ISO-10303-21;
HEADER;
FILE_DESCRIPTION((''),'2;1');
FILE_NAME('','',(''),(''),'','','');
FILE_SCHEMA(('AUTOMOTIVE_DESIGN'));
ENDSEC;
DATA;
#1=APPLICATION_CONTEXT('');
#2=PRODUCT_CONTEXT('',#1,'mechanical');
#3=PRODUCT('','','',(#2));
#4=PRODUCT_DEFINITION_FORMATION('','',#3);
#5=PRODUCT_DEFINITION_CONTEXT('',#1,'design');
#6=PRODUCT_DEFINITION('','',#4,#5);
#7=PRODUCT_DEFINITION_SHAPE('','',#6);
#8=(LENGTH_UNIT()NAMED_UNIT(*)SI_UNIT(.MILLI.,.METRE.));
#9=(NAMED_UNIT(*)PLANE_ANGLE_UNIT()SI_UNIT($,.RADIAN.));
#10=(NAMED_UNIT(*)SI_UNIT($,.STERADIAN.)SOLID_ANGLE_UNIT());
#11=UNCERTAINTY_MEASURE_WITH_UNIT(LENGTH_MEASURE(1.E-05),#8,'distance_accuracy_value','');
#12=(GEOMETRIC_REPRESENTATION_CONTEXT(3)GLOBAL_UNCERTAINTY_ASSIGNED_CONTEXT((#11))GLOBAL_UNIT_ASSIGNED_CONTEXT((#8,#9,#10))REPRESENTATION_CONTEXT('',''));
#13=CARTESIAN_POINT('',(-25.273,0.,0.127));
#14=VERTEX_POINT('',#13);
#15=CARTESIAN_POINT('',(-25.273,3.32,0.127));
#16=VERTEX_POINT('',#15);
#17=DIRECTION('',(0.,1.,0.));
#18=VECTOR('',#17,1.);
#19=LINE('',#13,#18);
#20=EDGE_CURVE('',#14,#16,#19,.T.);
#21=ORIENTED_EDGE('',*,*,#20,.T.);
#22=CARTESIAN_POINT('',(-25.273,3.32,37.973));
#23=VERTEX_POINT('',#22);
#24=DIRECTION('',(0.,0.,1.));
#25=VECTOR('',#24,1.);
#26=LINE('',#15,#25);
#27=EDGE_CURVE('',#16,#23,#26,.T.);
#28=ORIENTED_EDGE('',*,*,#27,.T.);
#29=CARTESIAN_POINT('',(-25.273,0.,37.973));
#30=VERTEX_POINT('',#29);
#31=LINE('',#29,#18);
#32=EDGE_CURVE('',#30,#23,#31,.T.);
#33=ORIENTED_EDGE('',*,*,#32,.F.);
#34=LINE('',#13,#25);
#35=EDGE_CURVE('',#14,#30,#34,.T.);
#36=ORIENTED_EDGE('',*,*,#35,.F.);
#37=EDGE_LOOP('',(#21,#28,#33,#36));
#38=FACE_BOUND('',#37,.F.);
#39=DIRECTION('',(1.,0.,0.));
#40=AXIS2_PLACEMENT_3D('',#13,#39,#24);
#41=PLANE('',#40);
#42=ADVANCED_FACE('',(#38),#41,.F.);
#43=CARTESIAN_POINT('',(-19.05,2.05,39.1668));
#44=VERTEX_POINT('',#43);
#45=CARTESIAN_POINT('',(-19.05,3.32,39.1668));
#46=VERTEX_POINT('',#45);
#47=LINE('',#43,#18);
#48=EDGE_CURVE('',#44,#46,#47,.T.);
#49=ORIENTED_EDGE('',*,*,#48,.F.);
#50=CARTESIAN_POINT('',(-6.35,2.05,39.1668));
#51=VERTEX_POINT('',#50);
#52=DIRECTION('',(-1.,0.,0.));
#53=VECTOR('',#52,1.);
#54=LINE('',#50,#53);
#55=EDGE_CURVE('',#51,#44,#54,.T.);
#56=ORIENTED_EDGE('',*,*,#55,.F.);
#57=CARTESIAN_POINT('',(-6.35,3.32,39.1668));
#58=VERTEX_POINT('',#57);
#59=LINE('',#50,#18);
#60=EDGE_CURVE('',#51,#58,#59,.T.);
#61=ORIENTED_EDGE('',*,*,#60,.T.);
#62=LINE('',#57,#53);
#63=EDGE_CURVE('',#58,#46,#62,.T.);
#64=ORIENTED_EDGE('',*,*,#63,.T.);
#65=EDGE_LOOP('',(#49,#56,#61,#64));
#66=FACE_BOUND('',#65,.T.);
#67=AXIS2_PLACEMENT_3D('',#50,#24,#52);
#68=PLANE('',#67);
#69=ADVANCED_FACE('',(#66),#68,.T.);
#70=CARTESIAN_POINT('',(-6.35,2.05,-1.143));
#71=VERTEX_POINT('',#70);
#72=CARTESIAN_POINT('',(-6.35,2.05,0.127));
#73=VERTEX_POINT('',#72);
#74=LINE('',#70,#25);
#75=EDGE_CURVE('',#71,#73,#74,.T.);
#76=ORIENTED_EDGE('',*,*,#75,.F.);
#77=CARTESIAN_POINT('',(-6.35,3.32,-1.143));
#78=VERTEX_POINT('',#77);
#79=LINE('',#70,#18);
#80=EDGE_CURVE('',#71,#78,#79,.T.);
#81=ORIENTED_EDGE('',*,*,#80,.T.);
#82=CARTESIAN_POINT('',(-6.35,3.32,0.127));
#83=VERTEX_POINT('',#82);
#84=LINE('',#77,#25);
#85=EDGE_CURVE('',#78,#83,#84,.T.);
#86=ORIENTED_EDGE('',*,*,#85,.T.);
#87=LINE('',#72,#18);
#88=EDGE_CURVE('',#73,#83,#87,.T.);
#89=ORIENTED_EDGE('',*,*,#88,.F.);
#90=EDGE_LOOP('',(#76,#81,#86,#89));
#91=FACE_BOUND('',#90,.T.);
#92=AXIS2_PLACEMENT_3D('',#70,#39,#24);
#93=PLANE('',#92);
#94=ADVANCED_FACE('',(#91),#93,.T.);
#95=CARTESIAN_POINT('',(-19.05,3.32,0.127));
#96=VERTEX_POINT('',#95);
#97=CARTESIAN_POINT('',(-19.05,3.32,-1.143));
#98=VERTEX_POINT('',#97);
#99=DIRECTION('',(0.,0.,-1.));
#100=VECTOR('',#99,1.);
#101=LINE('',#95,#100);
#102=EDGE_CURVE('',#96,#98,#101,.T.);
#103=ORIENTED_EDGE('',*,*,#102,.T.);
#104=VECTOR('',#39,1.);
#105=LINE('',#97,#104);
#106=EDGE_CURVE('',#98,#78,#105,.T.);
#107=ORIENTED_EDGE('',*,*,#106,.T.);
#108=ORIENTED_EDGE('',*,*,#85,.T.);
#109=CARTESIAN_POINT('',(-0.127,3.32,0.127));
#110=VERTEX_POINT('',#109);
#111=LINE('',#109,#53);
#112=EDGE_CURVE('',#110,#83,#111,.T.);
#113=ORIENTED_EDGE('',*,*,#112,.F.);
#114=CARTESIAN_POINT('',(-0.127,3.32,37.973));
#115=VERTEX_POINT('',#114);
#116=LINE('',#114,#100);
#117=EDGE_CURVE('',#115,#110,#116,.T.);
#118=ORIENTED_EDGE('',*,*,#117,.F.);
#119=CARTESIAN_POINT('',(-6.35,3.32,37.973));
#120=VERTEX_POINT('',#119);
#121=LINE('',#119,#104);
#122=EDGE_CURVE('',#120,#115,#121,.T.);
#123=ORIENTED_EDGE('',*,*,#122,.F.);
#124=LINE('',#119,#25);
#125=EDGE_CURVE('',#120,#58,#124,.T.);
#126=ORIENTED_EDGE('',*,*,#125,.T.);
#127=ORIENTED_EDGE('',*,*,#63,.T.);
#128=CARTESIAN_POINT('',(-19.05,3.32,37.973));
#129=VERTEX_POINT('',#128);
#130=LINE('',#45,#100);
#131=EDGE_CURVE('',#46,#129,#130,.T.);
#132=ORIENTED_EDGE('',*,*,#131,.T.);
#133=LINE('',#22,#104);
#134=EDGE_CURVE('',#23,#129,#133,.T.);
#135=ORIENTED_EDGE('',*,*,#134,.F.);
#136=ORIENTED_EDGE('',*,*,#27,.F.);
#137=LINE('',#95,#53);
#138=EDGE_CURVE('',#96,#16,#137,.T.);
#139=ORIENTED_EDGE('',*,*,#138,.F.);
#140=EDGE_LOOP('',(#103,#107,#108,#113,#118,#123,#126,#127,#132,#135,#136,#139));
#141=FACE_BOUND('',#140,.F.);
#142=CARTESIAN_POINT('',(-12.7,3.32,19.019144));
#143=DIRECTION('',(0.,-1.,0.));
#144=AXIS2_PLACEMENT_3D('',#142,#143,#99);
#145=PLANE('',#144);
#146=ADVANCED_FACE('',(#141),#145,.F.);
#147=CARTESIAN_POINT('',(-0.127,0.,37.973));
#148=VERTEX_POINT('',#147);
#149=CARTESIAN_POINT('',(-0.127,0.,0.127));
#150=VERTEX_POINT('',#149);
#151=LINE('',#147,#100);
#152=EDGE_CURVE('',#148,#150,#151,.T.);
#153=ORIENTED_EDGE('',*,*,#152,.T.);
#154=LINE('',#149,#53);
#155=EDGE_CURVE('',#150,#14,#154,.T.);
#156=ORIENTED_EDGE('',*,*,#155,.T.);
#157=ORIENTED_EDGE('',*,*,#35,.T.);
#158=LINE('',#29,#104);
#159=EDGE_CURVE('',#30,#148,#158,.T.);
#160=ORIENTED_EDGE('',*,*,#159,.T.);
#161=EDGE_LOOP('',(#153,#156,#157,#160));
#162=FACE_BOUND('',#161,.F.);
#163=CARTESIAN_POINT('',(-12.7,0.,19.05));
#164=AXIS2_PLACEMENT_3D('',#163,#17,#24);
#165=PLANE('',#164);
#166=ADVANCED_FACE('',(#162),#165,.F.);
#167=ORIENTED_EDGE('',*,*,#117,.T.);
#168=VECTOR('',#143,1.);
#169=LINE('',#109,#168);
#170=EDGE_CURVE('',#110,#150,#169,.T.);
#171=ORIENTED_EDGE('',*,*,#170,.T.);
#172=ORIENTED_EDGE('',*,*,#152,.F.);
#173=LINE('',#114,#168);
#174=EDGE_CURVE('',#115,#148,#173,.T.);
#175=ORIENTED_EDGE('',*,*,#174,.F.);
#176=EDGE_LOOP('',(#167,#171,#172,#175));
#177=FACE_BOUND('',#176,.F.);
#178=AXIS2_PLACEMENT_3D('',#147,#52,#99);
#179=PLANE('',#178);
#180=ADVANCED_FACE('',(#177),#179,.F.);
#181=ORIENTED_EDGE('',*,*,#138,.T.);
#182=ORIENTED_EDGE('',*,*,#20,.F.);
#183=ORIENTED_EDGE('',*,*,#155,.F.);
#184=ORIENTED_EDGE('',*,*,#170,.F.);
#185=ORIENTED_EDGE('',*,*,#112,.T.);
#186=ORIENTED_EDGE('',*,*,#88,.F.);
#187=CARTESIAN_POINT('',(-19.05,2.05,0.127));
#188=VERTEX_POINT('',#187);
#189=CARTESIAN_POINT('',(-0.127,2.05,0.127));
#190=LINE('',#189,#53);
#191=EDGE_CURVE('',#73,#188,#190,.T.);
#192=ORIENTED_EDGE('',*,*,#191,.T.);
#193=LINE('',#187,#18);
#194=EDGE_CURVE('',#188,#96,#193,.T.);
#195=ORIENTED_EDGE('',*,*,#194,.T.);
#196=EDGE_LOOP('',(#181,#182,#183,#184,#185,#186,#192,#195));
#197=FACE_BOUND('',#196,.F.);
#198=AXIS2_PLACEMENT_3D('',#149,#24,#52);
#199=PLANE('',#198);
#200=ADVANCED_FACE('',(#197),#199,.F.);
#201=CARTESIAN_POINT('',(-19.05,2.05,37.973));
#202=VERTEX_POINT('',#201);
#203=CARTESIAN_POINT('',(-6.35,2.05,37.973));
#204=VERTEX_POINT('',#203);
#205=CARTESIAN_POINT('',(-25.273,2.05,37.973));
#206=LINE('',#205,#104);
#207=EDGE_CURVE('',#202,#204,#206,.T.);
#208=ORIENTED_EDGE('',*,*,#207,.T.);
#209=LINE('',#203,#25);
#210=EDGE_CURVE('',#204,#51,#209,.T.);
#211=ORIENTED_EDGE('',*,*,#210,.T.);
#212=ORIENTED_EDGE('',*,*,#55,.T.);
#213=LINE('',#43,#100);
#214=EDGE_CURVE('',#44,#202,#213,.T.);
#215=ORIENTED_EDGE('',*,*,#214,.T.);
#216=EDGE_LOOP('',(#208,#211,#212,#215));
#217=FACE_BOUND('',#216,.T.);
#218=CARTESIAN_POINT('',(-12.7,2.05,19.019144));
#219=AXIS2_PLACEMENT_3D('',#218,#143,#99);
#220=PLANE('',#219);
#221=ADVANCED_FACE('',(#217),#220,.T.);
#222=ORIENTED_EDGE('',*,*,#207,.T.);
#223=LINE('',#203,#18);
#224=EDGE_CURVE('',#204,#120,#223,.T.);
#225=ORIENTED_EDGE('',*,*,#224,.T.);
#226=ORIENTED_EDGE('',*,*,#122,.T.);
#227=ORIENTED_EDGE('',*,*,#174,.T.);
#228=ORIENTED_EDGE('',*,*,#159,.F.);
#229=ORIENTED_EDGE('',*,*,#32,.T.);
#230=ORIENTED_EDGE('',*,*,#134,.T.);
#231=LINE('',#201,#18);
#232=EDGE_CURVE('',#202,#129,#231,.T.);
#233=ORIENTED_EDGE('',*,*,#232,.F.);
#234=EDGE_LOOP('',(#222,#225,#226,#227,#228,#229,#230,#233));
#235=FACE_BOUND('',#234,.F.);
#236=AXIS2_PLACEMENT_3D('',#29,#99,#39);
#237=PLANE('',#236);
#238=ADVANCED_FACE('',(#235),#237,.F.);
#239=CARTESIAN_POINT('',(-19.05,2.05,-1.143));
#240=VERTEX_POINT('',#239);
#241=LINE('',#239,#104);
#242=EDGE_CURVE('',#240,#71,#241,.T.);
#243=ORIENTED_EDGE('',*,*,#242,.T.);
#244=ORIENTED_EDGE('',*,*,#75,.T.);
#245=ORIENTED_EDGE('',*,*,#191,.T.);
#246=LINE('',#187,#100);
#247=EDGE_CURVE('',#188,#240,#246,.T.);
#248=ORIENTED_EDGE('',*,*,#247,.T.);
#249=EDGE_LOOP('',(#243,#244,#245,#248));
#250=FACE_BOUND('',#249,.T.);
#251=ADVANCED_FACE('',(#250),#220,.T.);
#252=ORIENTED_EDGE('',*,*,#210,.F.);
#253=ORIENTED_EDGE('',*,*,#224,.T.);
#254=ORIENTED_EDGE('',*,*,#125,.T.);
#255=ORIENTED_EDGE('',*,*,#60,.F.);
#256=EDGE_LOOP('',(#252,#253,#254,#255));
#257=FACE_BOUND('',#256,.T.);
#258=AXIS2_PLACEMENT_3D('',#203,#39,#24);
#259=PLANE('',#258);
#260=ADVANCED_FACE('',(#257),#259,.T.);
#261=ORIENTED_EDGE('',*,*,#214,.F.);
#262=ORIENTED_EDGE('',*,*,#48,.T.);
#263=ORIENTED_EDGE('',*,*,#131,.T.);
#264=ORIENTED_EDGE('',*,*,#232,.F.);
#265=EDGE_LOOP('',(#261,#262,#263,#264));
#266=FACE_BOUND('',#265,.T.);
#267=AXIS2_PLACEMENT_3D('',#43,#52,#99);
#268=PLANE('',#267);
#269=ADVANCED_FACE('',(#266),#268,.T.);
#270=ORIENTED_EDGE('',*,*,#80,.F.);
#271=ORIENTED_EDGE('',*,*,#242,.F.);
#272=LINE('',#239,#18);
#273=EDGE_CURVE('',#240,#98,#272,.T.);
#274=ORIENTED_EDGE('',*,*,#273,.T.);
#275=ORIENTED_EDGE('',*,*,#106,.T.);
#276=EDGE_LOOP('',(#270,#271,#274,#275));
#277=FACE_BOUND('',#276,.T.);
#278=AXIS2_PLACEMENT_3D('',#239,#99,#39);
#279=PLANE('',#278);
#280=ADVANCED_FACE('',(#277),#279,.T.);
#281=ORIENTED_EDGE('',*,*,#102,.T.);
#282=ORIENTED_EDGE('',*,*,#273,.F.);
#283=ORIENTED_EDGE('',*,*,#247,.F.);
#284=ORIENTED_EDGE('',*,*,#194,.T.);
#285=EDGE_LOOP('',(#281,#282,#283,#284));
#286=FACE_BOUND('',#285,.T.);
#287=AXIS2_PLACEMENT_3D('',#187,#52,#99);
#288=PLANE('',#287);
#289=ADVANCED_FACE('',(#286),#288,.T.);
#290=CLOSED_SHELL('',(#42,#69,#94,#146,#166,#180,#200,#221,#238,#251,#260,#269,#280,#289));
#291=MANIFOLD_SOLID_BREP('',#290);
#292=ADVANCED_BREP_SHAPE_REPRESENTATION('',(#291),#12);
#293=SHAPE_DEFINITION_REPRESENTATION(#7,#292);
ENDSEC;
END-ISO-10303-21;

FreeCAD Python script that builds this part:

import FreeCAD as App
import Part
import Sketcher
from FreeCAD import Vector
Q = App.Units.Quantity


def add_polygon(sketch, points):
    """Adds a closed chain of lines whose ends are joined by coincident constraints."""
    first, n = sketch.GeometryCount, len(points)
    for a, b in zip(points, points[1:] + points[:1]):
        sketch.addGeometry(Part.LineSegment(App.Vector(*a, 0), App.Vector(*b, 0)), False)
    for i in range(n):
        sketch.addConstraint(Sketcher.Constraint("Coincident", first + i, 2, first + (i + 1) % n, 1))

doc = App.newDocument("Part")
params = doc.addObject("Spreadsheet::Sheet", "Params")
for row, (alias, value) in enumerate([
    ("sketch1_width", "0.99 in"),
    ("sketch1_height", "1.49 in"),
    ("pad1_length", "0.0807087 in"),
    ("sketch2_width", "0.5 in"),
    ("sketch2_height", "0.05 in"),
    ("sketch2_height2", "1.49 in"),
    ("sketch2_width2", "0.245 in"),
    ("sketch2_height3", "0.047 in"),
    ("pad2_length", "0.05 in"),
], start=1):
    params.set(f"A{row}", alias)
    params.set(f"B{row}", "=" + value)
    params.setAlias(f"B{row}", alias)

body = doc.addObject("PartDesign::Body", "Body")

sketch1 = body.newObject("Sketcher::SketchObject", "Sketch")
sketch1.AttachmentSupport = (doc.getObject("XZ_Plane"), [""])
sketch1.MapMode = "FlatFace"
add_polygon(sketch1, [(-25, 0), (0, 0), (0, 38), (-25, 38)])
sketch1.addConstraint(Sketcher.Constraint("Horizontal", 0))
sketch1.addConstraint(Sketcher.Constraint("Vertical", 1))
sketch1.addConstraint(Sketcher.Constraint("Horizontal", 2))
sketch1.addConstraint(Sketcher.Constraint("Vertical", 3))
sketch1.addConstraint(Sketcher.Constraint("DistanceX", 0, 1, 0, 2, Q("0.99 in")))
sketch1.addConstraint(Sketcher.Constraint("DistanceY", 1, 1, 1, 2, Q("1.49 in")))
sketch1.addConstraint(Sketcher.Constraint("DistanceX", 0, 2, -1, 1, Q("0.005 in")))
sketch1.addConstraint(Sketcher.Constraint("DistanceY", -1, 1, 0, 2, Q("0.005 in")))
sketch1.setExpression("Constraints[8]", "Params.sketch1_width")
sketch1.setExpression("Constraints[9]", "Params.sketch1_height")
pad1 = body.newObject("PartDesign::Pad", "Pad")
pad1.Profile = sketch1
pad1.setExpression("Length", "Params.pad1_length")
pad1.Reversed = True

sketch2 = body.newObject("Sketcher::SketchObject", "Sketch001")
sketch2.AttachmentSupport = (doc.getObject("XZ_Plane"), [""])
sketch2.MapMode = "FlatFace"
sketch2.AttachmentOffset = App.Placement(Vector(0, 0, -0.0807087 * 25.4), App.Rotation())
add_polygon(sketch2, [(-6.3, -1.1), (-19.1, -1.1), (-19.1, 0.1), (-25.3, 0.1), (-25.3, 38), (-19.1, 38), (-19.1, 39.2), (-6.3, 39.2), (-6.3, 38), (-0.1, 38), (-0.1, 0.1), (-6.3, 0.1)])
sketch2.addConstraint(Sketcher.Constraint("Horizontal", 0))
sketch2.addConstraint(Sketcher.Constraint("Vertical", 1))
sketch2.addConstraint(Sketcher.Constraint("Horizontal", 2))
sketch2.addConstraint(Sketcher.Constraint("Vertical", 3))
sketch2.addConstraint(Sketcher.Constraint("Horizontal", 4))
sketch2.addConstraint(Sketcher.Constraint("Vertical", 5))
sketch2.addConstraint(Sketcher.Constraint("Horizontal", 6))
sketch2.addConstraint(Sketcher.Constraint("Vertical", 7))
sketch2.addConstraint(Sketcher.Constraint("Horizontal", 8))
sketch2.addConstraint(Sketcher.Constraint("Vertical", 9))
sketch2.addConstraint(Sketcher.Constraint("Horizontal", 10))
sketch2.addConstraint(Sketcher.Constraint("Vertical", 11))
sketch2.addConstraint(Sketcher.Constraint("Horizontal", 4, 2, 7, 2))
sketch2.addConstraint(Sketcher.Constraint("Horizontal", 2, 2, 9, 2))
sketch2.addConstraint(Sketcher.Constraint("Vertical", 1, 2, 4, 2))
sketch2.addConstraint(Sketcher.Constraint("Vertical", 7, 2, 10, 2))
sketch2.addConstraint(Sketcher.Constraint("Equal", 4, 8))
sketch2.addConstraint(Sketcher.Constraint("DistanceX", 0, 2, 0, 1, Q("0.5 in")))
sketch2.addConstraint(Sketcher.Constraint("DistanceY", 1, 1, 1, 2, Q("0.05 in")))
sketch2.addConstraint(Sketcher.Constraint("DistanceY", 3, 1, 3, 2, Q("1.49 in")))
sketch2.addConstraint(Sketcher.Constraint("DistanceX", 2, 2, 2, 1, Q("0.245 in")))
sketch2.addConstraint(Sketcher.Constraint("DistanceY", 5, 1, 5, 2, Q("0.047 in")))
sketch2.addConstraint(Sketcher.Constraint("DistanceX", 0, 2, -1, 1, Q("0.75 in")))
sketch2.addConstraint(Sketcher.Constraint("DistanceY", 0, 2, -1, 1, Q("0.045 in")))
sketch2.setExpression("Constraints[29]", "Params.sketch2_width")
sketch2.setExpression("Constraints[30]", "Params.sketch2_height")
sketch2.setExpression("Constraints[31]", "Params.sketch2_height2")
sketch2.setExpression("Constraints[32]", "Params.sketch2_width2")
sketch2.setExpression("Constraints[33]", "Params.sketch2_height3")
pad2 = body.newObject("PartDesign::Pad", "Pad001")
pad2.Profile = sketch2
pad2.setExpression("Length", "Params.pad2_length")
pad2.Reversed = True

doc.recompute()
